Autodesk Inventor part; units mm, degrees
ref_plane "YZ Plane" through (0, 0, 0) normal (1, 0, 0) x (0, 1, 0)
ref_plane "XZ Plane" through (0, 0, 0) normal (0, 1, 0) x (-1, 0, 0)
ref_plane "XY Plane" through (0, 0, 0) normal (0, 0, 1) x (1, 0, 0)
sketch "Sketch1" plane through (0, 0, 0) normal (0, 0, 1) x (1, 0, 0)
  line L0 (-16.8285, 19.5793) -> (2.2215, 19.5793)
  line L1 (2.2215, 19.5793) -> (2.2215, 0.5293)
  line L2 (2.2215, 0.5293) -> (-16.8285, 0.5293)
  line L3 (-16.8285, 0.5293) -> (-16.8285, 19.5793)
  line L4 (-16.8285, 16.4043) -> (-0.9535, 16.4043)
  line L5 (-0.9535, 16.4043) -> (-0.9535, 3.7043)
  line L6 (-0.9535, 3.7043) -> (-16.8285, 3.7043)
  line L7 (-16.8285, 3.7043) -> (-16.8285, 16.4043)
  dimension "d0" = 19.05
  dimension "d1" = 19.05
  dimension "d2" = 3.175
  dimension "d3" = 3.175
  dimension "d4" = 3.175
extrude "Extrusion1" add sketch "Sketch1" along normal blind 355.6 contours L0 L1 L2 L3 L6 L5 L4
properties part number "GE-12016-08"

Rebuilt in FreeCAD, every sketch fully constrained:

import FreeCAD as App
import Part
import Sketcher
from FreeCAD import Vector
Q = App.Units.Quantity


def add_polygon(sketch, points):
    """Adds a closed chain of lines whose ends are joined by coincident constraints."""
    first, n = sketch.GeometryCount, len(points)
    for a, b in zip(points, points[1:] + points[:1]):
        sketch.addGeometry(Part.LineSegment(App.Vector(*a, 0), App.Vector(*b, 0)), False)
    for i in range(n):
        sketch.addConstraint(Sketcher.Constraint("Coincident", first + i, 2, first + (i + 1) % n, 1))

doc = App.newDocument("Part")
params = doc.addObject("Spreadsheet::Sheet", "Params")
for row, (alias, value) in enumerate([
    ("sketch1_width", "0.75 in"),
    ("sketch1_height", "0.125 in"),
    ("pad1_length", "14 in"),
], start=1):
    params.set(f"A{row}", alias)
    params.set(f"B{row}", "=" + value)
    params.setAlias(f"B{row}", alias)

body = doc.addObject("PartDesign::Body", "Body")

sketch1 = body.newObject("Sketcher::SketchObject", "Sketch")
sketch1.AttachmentSupport = (doc.getObject("XY_Plane"), [""])
sketch1.MapMode = "FlatFace"
add_polygon(sketch1, [(2.2, 19.6), (-16.8, 19.6), (-16.8, 16.4), (-1, 16.4), (-1, 3.7), (-16.8, 3.7), (-16.8, 0.5), (2.2, 0.5)])
sketch1.addConstraint([
    Sketcher.Constraint("Horizontal", 0),
    Sketcher.Constraint("Vertical", 1),
    Sketcher.Constraint("Horizontal", 2),
    Sketcher.Constraint("Vertical", 3),
    Sketcher.Constraint("Horizontal", 4),
    Sketcher.Constraint("Vertical", 5),
    Sketcher.Constraint("Horizontal", 6),
    Sketcher.Constraint("Vertical", 7),
    Sketcher.Constraint("Vertical", 1, 2, 4, 2),
    Sketcher.Constraint("Equal", 1, 5),
    Sketcher.Constraint("Equal", 6, 7),
    Sketcher.Constraint("DistanceX", 0, 2, 0, 1, Q("0.75 in")),
    Sketcher.Constraint("DistanceY", 1, 2, 1, 1, Q("0.125 in")),
    Sketcher.Constraint("DistanceX", 3, 2, 6, 2, Q("0.125 in")),
    Sketcher.Constraint("DistanceX", 0, 2, -1, 1, Q("16.8285 mm")),
    Sketcher.Constraint("DistanceY", -1, 1, 0, 2, Q("19.5793 mm")),
])
sketch1.setExpression("Constraints[19]", "Params.sketch1_width")
sketch1.setExpression("Constraints[20]", "Params.sketch1_height")
pad1 = body.newObject("PartDesign::Pad", "Pad")
pad1.Profile = sketch1
pad1.setExpression("Length", "Params.pad1_length")

doc.recompute()
